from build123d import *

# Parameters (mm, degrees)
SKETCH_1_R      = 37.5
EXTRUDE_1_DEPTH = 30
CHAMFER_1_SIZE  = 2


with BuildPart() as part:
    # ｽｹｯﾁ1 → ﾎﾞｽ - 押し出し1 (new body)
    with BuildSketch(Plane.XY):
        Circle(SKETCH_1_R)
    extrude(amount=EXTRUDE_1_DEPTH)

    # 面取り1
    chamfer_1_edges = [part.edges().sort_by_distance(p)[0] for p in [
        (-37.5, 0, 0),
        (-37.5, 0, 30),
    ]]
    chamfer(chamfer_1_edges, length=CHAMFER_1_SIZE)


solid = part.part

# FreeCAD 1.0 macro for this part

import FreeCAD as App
import Part
import Sketcher
Q = App.Units.Quantity


def edges_at(feature, points):
    """Names of the edges that pass closest to the given points."""
    edges = feature.Shape.Edges
    near = lambda p: min(range(len(edges)), key=lambda i: edges[i].distToShape(Part.Vertex(*p))[0])
    return sorted({f"Edge{near(p) + 1}" for p in points})

doc = App.newDocument("Part")
body = doc.addObject("PartDesign::Body", "Body")

# Sketch on XY plane
sketch1 = body.newObject("Sketcher::SketchObject", "Sketch")
sketch1.AttachmentSupport = (doc.getObject("XY_Plane"), [""])
sketch1.MapMode = "FlatFace"
sketch1.addGeometry(Part.Circle(App.Vector(0, 0, 0), App.Vector(0, 0, 1), 38), False)
sketch1.addConstraint([
    Sketcher.Constraint("Coincident", 0, 3, -1, 1),
    Sketcher.Constraint("Diameter", 0, Q("75 mm")),
])
pad1 = body.newObject("PartDesign::Pad", "Pad")
pad1.Profile = sketch1
pad1.Length = 30
doc.recompute()

chamfer = body.newObject("PartDesign::Chamfer", "Chamfer")
chamfer.Base = (pad1, edges_at(pad1, [(-37.5, 0, 0), (-37.5, 0, 30)]))
chamfer.Size = 2

doc.recompute()
